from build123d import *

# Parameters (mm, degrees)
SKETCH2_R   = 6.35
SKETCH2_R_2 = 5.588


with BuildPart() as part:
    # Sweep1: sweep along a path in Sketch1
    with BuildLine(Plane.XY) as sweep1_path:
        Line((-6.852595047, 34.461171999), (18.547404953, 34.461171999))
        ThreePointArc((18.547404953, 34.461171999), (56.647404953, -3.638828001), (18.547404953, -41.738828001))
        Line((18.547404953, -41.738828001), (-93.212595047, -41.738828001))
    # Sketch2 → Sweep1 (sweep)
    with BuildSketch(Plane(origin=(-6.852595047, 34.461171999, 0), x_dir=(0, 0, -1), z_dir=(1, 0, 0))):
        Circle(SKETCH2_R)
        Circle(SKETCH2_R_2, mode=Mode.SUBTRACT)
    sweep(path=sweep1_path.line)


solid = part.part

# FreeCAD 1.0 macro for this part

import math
import FreeCAD as App
import Part
import Sketcher
Q = App.Units.Quantity

doc = App.newDocument("Part")
body = doc.addObject("PartDesign::Body", "Body")

sketch1 = body.newObject("Sketcher::SketchObject", "Sketch")
sketch1.AttachmentSupport = (doc.getObject("YZ_Plane"), [""])
sketch1.MapMode = "FlatFace"
sketch1.AttachmentOffset = App.Placement(App.Vector(0, 0, -6.852595), App.Rotation())
sketch1.addGeometry(Part.Circle(App.Vector(34, 0, 0), App.Vector(0, 0, 1), 6), False)
sketch1.addGeometry(Part.Circle(App.Vector(34, 0, 0), App.Vector(0, 0, 1), 6), False)
sketch1.addConstraint(Sketcher.Constraint("Coincident", 1, 3, 0, 3))
sketch1.addConstraint(Sketcher.Constraint("PointOnObject", 0, 3, -1))
sketch1.addConstraint(Sketcher.Constraint("Diameter", 0, Q("0.5 in")))
sketch1.addConstraint(Sketcher.Constraint("Diameter", 1, Q("0.44 in")))
sketch1.addConstraint(Sketcher.Constraint("DistanceX", -1, 1, 0, 3, Q("34.461172 mm")))

sketch2 = body.newObject("Sketcher::SketchObject", "Sketch001")
sketch2.AttachmentSupport = (doc.getObject("XY_Plane"), [""])
sketch2.MapMode = "FlatFace"
sketch2.addGeometry(Part.LineSegment(App.Vector(-7, 34, 0), App.Vector(19, 34, 0)), False)
sketch2.addGeometry(Part.ArcOfCircle(Part.Circle(App.Vector(19, -4, 0), App.Vector(0, 0, 1), 38), math.radians(-90), math.radians(90)), False)
sketch2.addGeometry(Part.LineSegment(App.Vector(19, -42, 0), App.Vector(-93, -42, 0)), False)
sketch2.addConstraint(Sketcher.Constraint("Tangent", 0, 2, 1, 2))
sketch2.addConstraint(Sketcher.Constraint("Tangent", 1, 1, 2, 1))
sketch2.addConstraint(Sketcher.Constraint("Horizontal", 0))
sketch2.addConstraint(Sketcher.Constraint("Horizontal", 2))
sketch2.addConstraint(Sketcher.Constraint("Radius", 1, Q("1.5 in")))
sketch2.addConstraint(Sketcher.Constraint("DistanceX", 0, 1, 0, 2, Q("1 in")))
sketch2.addConstraint(Sketcher.Constraint("DistanceX", 2, 2, 2, 1, Q("4.4 in")))
sketch2.addConstraint(Sketcher.Constraint("DistanceY", 1, 3, -1, 1, Q("3.638828 mm")))
sketch2.addConstraint(Sketcher.Constraint("DistanceX", -1, 1, 1, 3, Q("18.547405 mm")))
doc.recompute()

additivepipe = body.newObject("PartDesign::AdditivePipe", "AdditivePipe")
additivepipe.Profile = sketch1
additivepipe.Spine = (sketch2, ["Edge1", "Edge2", "Edge3"])

doc.recompute()
